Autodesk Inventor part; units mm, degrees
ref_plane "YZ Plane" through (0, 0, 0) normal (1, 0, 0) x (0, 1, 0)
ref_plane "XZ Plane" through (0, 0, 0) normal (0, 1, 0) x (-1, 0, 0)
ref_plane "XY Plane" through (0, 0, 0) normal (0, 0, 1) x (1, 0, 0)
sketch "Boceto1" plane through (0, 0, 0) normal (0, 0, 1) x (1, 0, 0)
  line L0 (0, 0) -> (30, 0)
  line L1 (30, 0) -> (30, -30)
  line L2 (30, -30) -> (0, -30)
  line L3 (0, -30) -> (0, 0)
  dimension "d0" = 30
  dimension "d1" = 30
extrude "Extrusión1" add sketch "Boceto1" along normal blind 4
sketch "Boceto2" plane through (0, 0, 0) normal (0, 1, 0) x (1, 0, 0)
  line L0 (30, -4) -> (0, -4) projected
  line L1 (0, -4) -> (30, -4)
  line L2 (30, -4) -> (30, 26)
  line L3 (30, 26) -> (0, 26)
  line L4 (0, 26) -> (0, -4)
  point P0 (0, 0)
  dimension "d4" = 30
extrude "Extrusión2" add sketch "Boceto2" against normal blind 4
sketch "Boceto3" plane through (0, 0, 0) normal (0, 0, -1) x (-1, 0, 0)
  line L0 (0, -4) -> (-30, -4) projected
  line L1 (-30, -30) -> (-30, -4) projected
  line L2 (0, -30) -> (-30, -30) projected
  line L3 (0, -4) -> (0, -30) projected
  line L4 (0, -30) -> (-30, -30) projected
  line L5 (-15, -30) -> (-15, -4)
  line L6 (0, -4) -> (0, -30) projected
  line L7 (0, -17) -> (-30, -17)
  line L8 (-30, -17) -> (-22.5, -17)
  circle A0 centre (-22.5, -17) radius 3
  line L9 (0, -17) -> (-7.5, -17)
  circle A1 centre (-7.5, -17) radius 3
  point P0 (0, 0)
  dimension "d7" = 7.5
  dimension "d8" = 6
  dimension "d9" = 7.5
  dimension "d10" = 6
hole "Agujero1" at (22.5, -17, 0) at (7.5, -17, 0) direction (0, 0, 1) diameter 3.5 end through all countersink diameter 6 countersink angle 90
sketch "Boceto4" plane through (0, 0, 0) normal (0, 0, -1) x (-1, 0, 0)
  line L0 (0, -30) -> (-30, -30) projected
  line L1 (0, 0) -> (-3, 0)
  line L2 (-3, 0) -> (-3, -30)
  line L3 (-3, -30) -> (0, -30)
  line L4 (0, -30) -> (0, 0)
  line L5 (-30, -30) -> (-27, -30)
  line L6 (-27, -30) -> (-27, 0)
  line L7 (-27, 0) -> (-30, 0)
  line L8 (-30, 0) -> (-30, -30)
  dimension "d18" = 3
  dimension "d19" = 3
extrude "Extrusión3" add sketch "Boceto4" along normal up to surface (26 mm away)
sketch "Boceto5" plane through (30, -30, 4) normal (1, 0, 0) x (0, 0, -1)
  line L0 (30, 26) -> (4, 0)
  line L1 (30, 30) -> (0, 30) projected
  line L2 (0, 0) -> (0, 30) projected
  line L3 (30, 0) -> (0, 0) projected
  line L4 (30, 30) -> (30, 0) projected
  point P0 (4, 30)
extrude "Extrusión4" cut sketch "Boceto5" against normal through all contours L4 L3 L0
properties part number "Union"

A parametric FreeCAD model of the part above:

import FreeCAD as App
import Part
import Sketcher

V = App.Vector
Q = App.Units.Quantity

doc = App.newDocument("Part")
body = doc.addObject("PartDesign::Body", "Body")

sketch1 = body.newObject("Sketcher::SketchObject", "Sketch")
sketch1.AttachmentSupport = (doc.getObject("XY_Plane"), [""])
sketch1.MapMode = "FlatFace"
sketch1.addGeometry(Part.LineSegment(V(30, 0, 0), V(0, 0, 0)), False)
sketch1.addGeometry(Part.LineSegment(V(0, 0, 0), V(0, -30, 0)), False)
sketch1.addGeometry(Part.LineSegment(V(0, -30, 0), V(30, -30, 0)), False)
sketch1.addGeometry(Part.LineSegment(V(30, -30, 0), V(30, 0, 0)), False)
sketch1.addConstraint(Sketcher.Constraint("Coincident", 0, 2, 1, 1))
sketch1.addConstraint(Sketcher.Constraint("Coincident", 1, 2, 2, 1))
sketch1.addConstraint(Sketcher.Constraint("Coincident", 2, 2, 3, 1))
sketch1.addConstraint(Sketcher.Constraint("Coincident", 3, 2, 0, 1))
sketch1.addConstraint(Sketcher.Constraint("Horizontal", 0))
sketch1.addConstraint(Sketcher.Constraint("Vertical", 1))
sketch1.addConstraint(Sketcher.Constraint("Horizontal", 2))
sketch1.addConstraint(Sketcher.Constraint("Vertical", 3))
sketch1.addConstraint(Sketcher.Constraint("Coincident", 0, 2, -1, 1))
sketch1.addConstraint(Sketcher.Constraint("Equal", 2, 1))
sketch1.addConstraint(Sketcher.Constraint("DistanceX", 0, 2, 0, 1, Q("30 mm")))
pad1 = body.newObject("PartDesign::Pad", "Pad")
pad1.Profile = sketch1
pad1.Length = 4

sketch2 = body.newObject("Sketcher::SketchObject", "Sketch001")
sketch2.AttachmentSupport = (doc.getObject("XZ_Plane"), [""])
sketch2.MapMode = "FlatFace"
sketch2.addGeometry(Part.LineSegment(V(0, 4, 0), V(30, 4, 0)), False)
sketch2.addGeometry(Part.LineSegment(V(30, 4, 0), V(30, -26, 0)), False)
sketch2.addGeometry(Part.LineSegment(V(30, -26, 0), V(0, -26, 0)), False)
sketch2.addGeometry(Part.LineSegment(V(0, -26, 0), V(0, 4, 0)), False)
sketch2.addConstraint(Sketcher.Constraint("Coincident", 0, 2, 1, 1))
sketch2.addConstraint(Sketcher.Constraint("Coincident", 1, 2, 2, 1))
sketch2.addConstraint(Sketcher.Constraint("Coincident", 2, 2, 3, 1))
sketch2.addConstraint(Sketcher.Constraint("Coincident", 3, 2, 0, 1))
sketch2.addConstraint(Sketcher.Constraint("Horizontal", 0))
sketch2.addConstraint(Sketcher.Constraint("Vertical", 1))
sketch2.addConstraint(Sketcher.Constraint("Horizontal", 2))
sketch2.addConstraint(Sketcher.Constraint("Vertical", 3))
sketch2.addConstraint(Sketcher.Constraint("PointOnObject", 2, 2, -2))
sketch2.addConstraint(Sketcher.Constraint("Equal", 2, 1))
sketch2.addConstraint(Sketcher.Constraint("DistanceX", 0, 1, 0, 2, Q("30 mm")))
sketch2.addConstraint(Sketcher.Constraint("DistanceY", -1, 1, 0, 2, Q("4 mm")))
pad2 = body.newObject("PartDesign::Pad", "Pad001")
pad2.Profile = sketch2
pad2.Length = 4

sketch3 = body.newObject("Sketcher::SketchObject", "Sketch002")
sketch3.AttachmentSupport = (doc.getObject("XY_Plane"), [""])
sketch3.MapMode = "FlatFace"
sketch3.addGeometry(Part.Circle(V(22.5, -17, 0), V(0, 0, 1), 1.8), False)
sketch3.addGeometry(Part.Circle(V(7.5, -17, 0), V(0, 0, 1), 1.8), False)
sketch3.addConstraint(Sketcher.Constraint("Equal", 0, 1))
sketch3.addConstraint(Sketcher.Constraint("Horizontal", 0, 3, 1, 3))
sketch3.addConstraint(Sketcher.Constraint("Diameter", 0, Q("3.5 mm")))
sketch3.addConstraint(Sketcher.Constraint("DistanceY", 0, 3, -1, 1, Q("17 mm")))
sketch3.addConstraint(Sketcher.Constraint("DistanceX", 1, 3, 0, 3, Q("15 mm")))
sketch3.addConstraint(Sketcher.Constraint("DistanceX", -1, 1, 0, 3, Q("22.5 mm")))
doc.recompute()
hole = body.newObject("PartDesign::Hole", "Hole")
hole.Profile = sketch3
hole.ThreadType = "None"
hole.Diameter = 3.5
hole.DepthType = "ThroughAll"
hole.HoleCutType = "Countersink"
hole.HoleCutDiameter = 6
hole.HoleCutCountersinkAngle = 90
hole.Reversed = True

sketch4 = body.newObject("Sketcher::SketchObject", "Sketch003")
sketch4.AttachmentSupport = (doc.getObject("XY_Plane"), [""])
sketch4.MapMode = "FlatFace"
sketch4.addGeometry(Part.LineSegment(V(30, -30, 0), V(27, -30, 0)), False)
sketch4.addGeometry(Part.LineSegment(V(27, -30, 0), V(27, 0, 0)), False)
sketch4.addGeometry(Part.LineSegment(V(27, 0, 0), V(30, 0, 0)), False)
sketch4.addGeometry(Part.LineSegment(V(30, 0, 0), V(30, -30, 0)), False)
sketch4.addGeometry(Part.LineSegment(V(3, -30, 0), V(0, -30, 0)), False)
sketch4.addGeometry(Part.LineSegment(V(0, -30, 0), V(0, 0, 0)), False)
sketch4.addGeometry(Part.LineSegment(V(0, 0, 0), V(3, 0, 0)), False)
sketch4.addGeometry(Part.LineSegment(V(3, 0, 0), V(3, -30, 0)), False)
sketch4.addConstraint(Sketcher.Constraint("Coincident", 0, 2, 1, 1))
sketch4.addConstraint(Sketcher.Constraint("Coincident", 1, 2, 2, 1))
sketch4.addConstraint(Sketcher.Constraint("Coincident", 2, 2, 3, 1))
sketch4.addConstraint(Sketcher.Constraint("Coincident", 3, 2, 0, 1))
sketch4.addConstraint(Sketcher.Constraint("Coincident", 4, 2, 5, 1))
sketch4.addConstraint(Sketcher.Constraint("Coincident", 5, 2, 6, 1))
sketch4.addConstraint(Sketcher.Constraint("Coincident", 6, 2, 7, 1))
sketch4.addConstraint(Sketcher.Constraint("Coincident", 7, 2, 4, 1))
sketch4.addConstraint(Sketcher.Constraint("Horizontal", 0))
sketch4.addConstraint(Sketcher.Constraint("Vertical", 1))
sketch4.addConstraint(Sketcher.Constraint("Horizontal", 2))
sketch4.addConstraint(Sketcher.Constraint("Vertical", 3))
sketch4.addConstraint(Sketcher.Constraint("Horizontal", 4))
sketch4.addConstraint(Sketcher.Constraint("Vertical", 5))
sketch4.addConstraint(Sketcher.Constraint("Horizontal", 6))
sketch4.addConstraint(Sketcher.Constraint("Vertical", 7))
sketch4.addConstraint(Sketcher.Constraint("Coincident", 5, 2, -1, 1))
sketch4.addConstraint(Sketcher.Constraint("PointOnObject", 1, 2, -1))
sketch4.addConstraint(Sketcher.Constraint("Horizontal", 3, 2, 4, 2))
sketch4.addConstraint(Sketcher.Constraint("Equal", 2, 4))
sketch4.addConstraint(Sketcher.Constraint("DistanceX", 0, 2, 0, 1, Q("3 mm")))
sketch4.addConstraint(Sketcher.Constraint("DistanceY", 1, 1, 1, 2, Q("30 mm")))
sketch4.addConstraint(Sketcher.Constraint("DistanceX", -1, 1, 0, 2, Q("27 mm")))
pad3 = body.newObject("PartDesign::Pad", "Pad002")
pad3.Profile = sketch4
pad3.Length = 26
pad3.Reversed = True

sketch5 = body.newObject("Sketcher::SketchObject", "Sketch004")
sketch5.AttachmentSupport = (doc.getObject("YZ_Plane"), [""])
sketch5.MapMode = "FlatFace"
sketch5.AttachmentOffset = App.Placement(V(0, 0, 30), App.Rotation())
sketch5.addGeometry(Part.LineSegment(V(-30, -26, 0), V(-4, -26, 0)), False)
sketch5.addGeometry(Part.LineSegment(V(-4, -26, 0), V(-30, 0, 0)), False)
sketch5.addGeometry(Part.LineSegment(V(-30, 0, 0), V(-30, -26, 0)), False)
sketch5.addConstraint(Sketcher.Constraint("Coincident", 0, 2, 1, 1))
sketch5.addConstraint(Sketcher.Constraint("Coincident", 1, 2, 2, 1))
sketch5.addConstraint(Sketcher.Constraint("Coincident", 2, 2, 0, 1))
sketch5.addConstraint(Sketcher.Constraint("Horizontal", 0))
sketch5.addConstraint(Sketcher.Constraint("Vertical", 2))
sketch5.addConstraint(Sketcher.Constraint("PointOnObject", 1, 2, -1))
sketch5.addConstraint(Sketcher.Constraint("Equal", 0, 2))
sketch5.addConstraint(Sketcher.Constraint("DistanceX", 0, 1, 0, 2, Q("26 mm")))
sketch5.addConstraint(Sketcher.Constraint("DistanceX", 0, 2, -1, 1, Q("4 mm")))
pocket1 = body.newObject("PartDesign::Pocket", "Pocket")
pocket1.Profile = sketch5
pocket1.Type = "ThroughAll"

doc.recompute()
